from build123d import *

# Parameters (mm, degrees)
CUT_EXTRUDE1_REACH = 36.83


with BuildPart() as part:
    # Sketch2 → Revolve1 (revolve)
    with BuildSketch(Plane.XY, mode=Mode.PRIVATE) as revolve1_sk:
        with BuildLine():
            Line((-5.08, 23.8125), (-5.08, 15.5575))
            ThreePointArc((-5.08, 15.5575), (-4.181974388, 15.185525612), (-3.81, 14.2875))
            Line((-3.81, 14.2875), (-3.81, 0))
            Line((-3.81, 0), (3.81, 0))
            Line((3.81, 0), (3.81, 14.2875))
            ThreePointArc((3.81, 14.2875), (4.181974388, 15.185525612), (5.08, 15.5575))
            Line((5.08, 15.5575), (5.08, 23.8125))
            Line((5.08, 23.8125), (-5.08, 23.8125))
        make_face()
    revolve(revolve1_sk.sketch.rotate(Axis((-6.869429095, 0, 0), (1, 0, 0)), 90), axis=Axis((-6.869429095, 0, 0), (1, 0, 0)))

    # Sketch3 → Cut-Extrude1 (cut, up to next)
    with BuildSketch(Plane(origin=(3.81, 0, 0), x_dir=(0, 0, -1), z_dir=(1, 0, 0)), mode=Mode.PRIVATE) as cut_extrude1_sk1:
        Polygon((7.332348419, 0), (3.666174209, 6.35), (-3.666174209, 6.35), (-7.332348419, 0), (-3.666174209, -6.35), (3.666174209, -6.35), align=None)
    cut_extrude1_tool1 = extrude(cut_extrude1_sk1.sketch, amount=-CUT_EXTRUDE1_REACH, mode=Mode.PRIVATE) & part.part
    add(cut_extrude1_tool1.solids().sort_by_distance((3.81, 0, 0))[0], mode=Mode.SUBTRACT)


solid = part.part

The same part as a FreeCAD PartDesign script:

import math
import FreeCAD as App
import Part
import Sketcher
Q = App.Units.Quantity

doc = App.newDocument("Part")
body = doc.addObject("PartDesign::Body", "Body")

# Sketch on XY plane
sketch1 = doc.addObject("Sketcher::SketchObject", "Sketch")
body.addObject(sketch1)
sketch1.AttachmentSupport = (doc.XY_Plane, [""])
sketch1.MapMode = "FlatFace"
sketch1.addGeometry(Part.LineSegment(App.Vector(-5.1, 23.8, 0), App.Vector(-5.1, 15.6, 0)), False)
sketch1.addGeometry(Part.ArcOfCircle(Part.Circle(App.Vector(-5.1, 14.3, 0), App.Vector(0, 0, 1), 1.3), math.radians(0), math.radians(90)), False)
sketch1.addGeometry(Part.LineSegment(App.Vector(-3.8, 14.3, 0), App.Vector(-3.8, 0, 0)), False)
sketch1.addGeometry(Part.LineSegment(App.Vector(-3.8, 0, 0), App.Vector(3.8, 0, 0)), False)
sketch1.addGeometry(Part.LineSegment(App.Vector(3.8, 0, 0), App.Vector(3.8, 14.3, 0)), False)
sketch1.addGeometry(Part.ArcOfCircle(Part.Circle(App.Vector(5.1, 14.3, 0), App.Vector(0, 0, 1), 1.3), math.radians(90), math.radians(180)), False)
sketch1.addGeometry(Part.LineSegment(App.Vector(5.1, 15.6, 0), App.Vector(5.1, 23.8, 0)), False)
sketch1.addGeometry(Part.LineSegment(App.Vector(5.1, 23.8, 0), App.Vector(-5.1, 23.8, 0)), False)
sketch1.addConstraint(Sketcher.Constraint("Coincident", 0, 2, 1, 2))
sketch1.addConstraint(Sketcher.Constraint("Tangent", 1, 1, 2, 1))
sketch1.addConstraint(Sketcher.Constraint("Coincident", 2, 2, 3, 1))
sketch1.addConstraint(Sketcher.Constraint("Coincident", 3, 2, 4, 1))
sketch1.addConstraint(Sketcher.Constraint("Tangent", 4, 2, 5, 2))
sketch1.addConstraint(Sketcher.Constraint("Coincident", 5, 1, 6, 1))
sketch1.addConstraint(Sketcher.Constraint("Coincident", 6, 2, 7, 1))
sketch1.addConstraint(Sketcher.Constraint("Coincident", 7, 2, 0, 1))
sketch1.addConstraint(Sketcher.Constraint("Vertical", 0))
sketch1.addConstraint(Sketcher.Constraint("Vertical", 2))
sketch1.addConstraint(Sketcher.Constraint("Horizontal", 3))
sketch1.addConstraint(Sketcher.Constraint("Vertical", 4))
sketch1.addConstraint(Sketcher.Constraint("Vertical", 6))
sketch1.addConstraint(Sketcher.Constraint("Horizontal", 7))
sketch1.addConstraint(Sketcher.Constraint("Equal", 1, 5))
sketch1.addConstraint(Sketcher.Constraint("Symmetric", 2, 2, 3, 2, -1, 1))
sketch1.addConstraint(Sketcher.Constraint("Symmetric", 0, 2, 5, 1, -2))
sketch1.addConstraint(Sketcher.Constraint("Vertical", 1, 3, 0, 2))
sketch1.addConstraint(Sketcher.Constraint("Radius", 1, Q("0.05 in")))
sketch1.addConstraint(Sketcher.Constraint("DistanceX", 3, 1, 3, 2, Q("0.3 in")))
sketch1.addConstraint(Sketcher.Constraint("DistanceY", 0, 2, 0, 1, Q("0.325 in")))
sketch1.addConstraint(Sketcher.Constraint("DistanceY", 2, 2, 2, 1, Q("0.5625 in")))
revolution = doc.addObject("PartDesign::Revolution", "Revolution")
body.addObject(revolution)
revolution.Profile = sketch1
revolution.ReferenceAxis = (sketch1, ["H_Axis"])
revolution.Angle = 360

# Sketch on YZ plane
sketch2 = doc.addObject("Sketcher::SketchObject", "Sketch001")
body.addObject(sketch2)
sketch2.AttachmentSupport = (doc.YZ_Plane, [""])
sketch2.MapMode = "FlatFace"
sketch2.AttachmentOffset = App.Placement(App.Vector(0, 0, 0.15 * 25.4), App.Rotation())
sketch2.addGeometry(Part.LineSegment(App.Vector(0, -7, 0), App.Vector(6, -4, 0)), False)
sketch2.addGeometry(Part.LineSegment(App.Vector(6, -4, 0), App.Vector(6, 4, 0)), False)
sketch2.addGeometry(Part.LineSegment(App.Vector(6, 4, 0), App.Vector(0, 7, 0)), False)
sketch2.addGeometry(Part.LineSegment(App.Vector(0, 7, 0), App.Vector(-6, 4, 0)), False)
sketch2.addGeometry(Part.LineSegment(App.Vector(-6, 4, 0), App.Vector(-6, -4, 0)), False)
sketch2.addGeometry(Part.LineSegment(App.Vector(-6, -4, 0), App.Vector(0, -7, 0)), False)
sketch2.addConstraint(Sketcher.Constraint("Coincident", 0, 2, 1, 1))
sketch2.addConstraint(Sketcher.Constraint("Coincident", 1, 2, 2, 1))
sketch2.addConstraint(Sketcher.Constraint("Coincident", 2, 2, 3, 1))
sketch2.addConstraint(Sketcher.Constraint("Coincident", 3, 2, 4, 1))
sketch2.addConstraint(Sketcher.Constraint("Coincident", 4, 2, 5, 1))
sketch2.addConstraint(Sketcher.Constraint("Coincident", 5, 2, 0, 1))
sketch2.addConstraint(Sketcher.Constraint("Vertical", 1))
sketch2.addConstraint(Sketcher.Constraint("Vertical", 4))
sketch2.addConstraint(Sketcher.Constraint("Symmetric", 0, 2, 3, 2, -1, 1))
sketch2.addConstraint(Sketcher.Constraint("Symmetric", 2, 2, 5, 2, -1, 1))
sketch2.addConstraint(Sketcher.Constraint("PointOnObject", 2, 2, -2))
sketch2.addConstraint(Sketcher.Constraint("Parallel", 2, 5))
sketch2.addConstraint(Sketcher.Constraint("Horizontal", 1, 2, 3, 2))
sketch2.addConstraint(Sketcher.Constraint("Angle", 0, Q("30 deg")))
sketch2.addConstraint(Sketcher.Constraint("DistanceX", 3, 2, 1, 2, Q("0.5 in")))
sketch2.addConstraint(Sketcher.Constraint("DistanceY", 1, 1, 1, 2, Q("7.332348 mm")))
pocket1 = doc.addObject("PartDesign::Pocket", "Pocket")
body.addObject(pocket1)
pocket1.Profile = sketch2
pocket1.Type = "UpToFirst"

doc.recompute()
